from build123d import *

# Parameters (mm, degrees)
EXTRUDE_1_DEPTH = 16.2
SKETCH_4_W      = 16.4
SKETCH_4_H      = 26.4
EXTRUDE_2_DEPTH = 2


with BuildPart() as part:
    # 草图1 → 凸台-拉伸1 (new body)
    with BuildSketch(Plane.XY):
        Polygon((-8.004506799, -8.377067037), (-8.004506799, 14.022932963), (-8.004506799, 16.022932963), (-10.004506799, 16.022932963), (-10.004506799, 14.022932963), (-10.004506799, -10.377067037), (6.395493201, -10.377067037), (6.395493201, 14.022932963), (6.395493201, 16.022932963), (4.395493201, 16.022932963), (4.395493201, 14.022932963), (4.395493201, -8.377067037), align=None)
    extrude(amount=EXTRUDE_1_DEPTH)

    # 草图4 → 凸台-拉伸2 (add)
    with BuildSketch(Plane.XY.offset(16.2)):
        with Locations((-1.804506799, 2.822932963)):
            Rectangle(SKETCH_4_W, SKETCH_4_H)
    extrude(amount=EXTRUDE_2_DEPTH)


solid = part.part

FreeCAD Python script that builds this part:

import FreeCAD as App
import Part
import Sketcher

doc = App.newDocument("Part")
body = doc.addObject("PartDesign::Body", "Body")

sketch1 = body.newObject("Sketcher::SketchObject", "Sketch")
sketch1.AttachmentSupport = (doc.getObject("XY_Plane"), [""])
sketch1.MapMode = "FlatFace"
sketch1.addGeometry([
    Part.LineSegment(App.Vector(-8.004507, -8.377067, 0), App.Vector(-8.004507, 16.022933, 0)),
    Part.LineSegment(App.Vector(-8.004507, 16.022933, 0), App.Vector(-10.004507, 16.022933, 0)),
    Part.LineSegment(App.Vector(-10.004507, 16.022933, 0), App.Vector(-10.004507, -10.377067, 0)),
    Part.LineSegment(App.Vector(-10.004507, -10.377067, 0), App.Vector(6.395493, -10.377067, 0)),
    Part.LineSegment(App.Vector(6.395493, -10.377067, 0), App.Vector(6.395493, 16.022933, 0)),
    Part.LineSegment(App.Vector(6.395493, 16.022933, 0), App.Vector(4.395493, 16.022933, 0)),
    Part.LineSegment(App.Vector(4.395493, 16.022933, 0), App.Vector(4.395493, -8.377067, 0)),
    Part.LineSegment(App.Vector(4.395493, -8.377067, 0), App.Vector(-8.004507, -8.377067, 0)),
], False)
sketch1.addConstraint([
    Sketcher.Constraint("Coincident", 0, 2, 1, 1),
    Sketcher.Constraint("Coincident", 1, 2, 2, 1),
    Sketcher.Constraint("Coincident", 2, 2, 3, 1),
    Sketcher.Constraint("Coincident", 3, 2, 4, 1),
    Sketcher.Constraint("Coincident", 4, 2, 5, 1),
    Sketcher.Constraint("Coincident", 5, 2, 6, 1),
    Sketcher.Constraint("Coincident", 6, 2, 7, 1),
    Sketcher.Constraint("Coincident", 7, 2, 0, 1),
    Sketcher.Constraint("Vertical", 0),
    Sketcher.Constraint("Horizontal", 1),
    Sketcher.Constraint("Vertical", 2),
    Sketcher.Constraint("Horizontal", 3),
    Sketcher.Constraint("Vertical", 4),
    Sketcher.Constraint("Horizontal", 5),
    Sketcher.Constraint("Vertical", 6),
    Sketcher.Constraint("Horizontal", 7),
    Sketcher.Constraint("Horizontal", 1, 2, 4, 2),
    Sketcher.Constraint("Equal", 1, 5),
    Sketcher.Constraint("DistanceX", 1, 2, 1, 1, 2.0),
    Sketcher.Constraint("DistanceX", 3, 1, 3, 2, 16.4),
    Sketcher.Constraint("DistanceY", 0, 1, 0, 2, 24.4),
    Sketcher.Constraint("DistanceY", 2, 2, 2, 1, 26.4),
    Sketcher.Constraint("DistanceX", 0, 2, -1, 1, 8.004507),
    Sketcher.Constraint("DistanceY", -1, 1, 0, 2, 16.022933),
])
pad1 = body.newObject("PartDesign::Pad", "Pad")
pad1.Profile = sketch1
pad1.Length = 16.2

sketch2 = body.newObject("Sketcher::SketchObject", "Sketch001")
sketch2.AttachmentSupport = (doc.getObject("XY_Plane"), [""])
sketch2.MapMode = "FlatFace"
sketch2.AttachmentOffset = App.Placement(App.Vector(0, 0, 16.2), App.Rotation())
sketch2.addGeometry([
    Part.LineSegment(App.Vector(-10.004507, 16.022933, 0), App.Vector(-10.004507, -10.377067, 0)),
    Part.LineSegment(App.Vector(-10.004507, -10.377067, 0), App.Vector(6.395493, -10.377067, 0)),
    Part.LineSegment(App.Vector(6.395493, -10.377067, 0), App.Vector(6.395493, 16.022933, 0)),
    Part.LineSegment(App.Vector(6.395493, 16.022933, 0), App.Vector(-10.004507, 16.022933, 0)),
], False)
sketch2.addConstraint([
    Sketcher.Constraint("Coincident", 0, 2, 1, 1),
    Sketcher.Constraint("Coincident", 1, 2, 2, 1),
    Sketcher.Constraint("Coincident", 2, 2, 3, 1),
    Sketcher.Constraint("Coincident", 3, 2, 0, 1),
    Sketcher.Constraint("Vertical", 0),
    Sketcher.Constraint("Horizontal", 1),
    Sketcher.Constraint("Vertical", 2),
    Sketcher.Constraint("Horizontal", 3),
    Sketcher.Constraint("DistanceX", 1, 1, 1, 2, 16.4),
    Sketcher.Constraint("DistanceY", 0, 2, 0, 1, 26.4),
    Sketcher.Constraint("DistanceX", 0, 2, -1, 1, 10.004507),
    Sketcher.Constraint("DistanceY", 0, 2, -1, 1, 10.377067),
])
pad2 = body.newObject("PartDesign::Pad", "Pad001")
pad2.Profile = sketch2
pad2.Length = 2

doc.recompute()
